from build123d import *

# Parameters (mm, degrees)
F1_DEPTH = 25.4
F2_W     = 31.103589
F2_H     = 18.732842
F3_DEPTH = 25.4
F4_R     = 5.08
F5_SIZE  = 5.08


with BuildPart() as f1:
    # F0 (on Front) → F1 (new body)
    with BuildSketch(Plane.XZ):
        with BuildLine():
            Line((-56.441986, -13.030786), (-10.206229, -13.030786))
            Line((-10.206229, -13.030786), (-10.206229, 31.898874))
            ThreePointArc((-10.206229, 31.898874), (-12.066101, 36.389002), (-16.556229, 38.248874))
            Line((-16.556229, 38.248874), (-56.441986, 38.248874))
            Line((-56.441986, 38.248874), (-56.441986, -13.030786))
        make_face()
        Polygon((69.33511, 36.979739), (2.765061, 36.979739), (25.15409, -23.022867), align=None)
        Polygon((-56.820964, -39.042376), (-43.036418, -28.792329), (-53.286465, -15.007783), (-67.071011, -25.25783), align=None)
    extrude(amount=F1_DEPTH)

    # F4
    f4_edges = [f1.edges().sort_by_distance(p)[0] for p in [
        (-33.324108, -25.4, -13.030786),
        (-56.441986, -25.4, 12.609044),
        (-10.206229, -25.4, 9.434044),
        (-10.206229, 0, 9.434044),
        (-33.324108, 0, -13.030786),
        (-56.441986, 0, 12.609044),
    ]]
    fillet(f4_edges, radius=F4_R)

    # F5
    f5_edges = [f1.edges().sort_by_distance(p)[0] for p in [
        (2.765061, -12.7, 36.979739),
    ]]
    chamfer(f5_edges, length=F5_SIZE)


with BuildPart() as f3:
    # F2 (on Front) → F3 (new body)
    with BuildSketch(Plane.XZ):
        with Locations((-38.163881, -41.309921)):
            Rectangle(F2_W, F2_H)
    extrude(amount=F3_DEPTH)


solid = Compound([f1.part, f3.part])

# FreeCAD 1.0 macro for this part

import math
import FreeCAD as App
import Part
import Sketcher
from FreeCAD import Vector
Q = App.Units.Quantity


def edges_at(feature, points):
    """Names of the edges that pass closest to the given points."""
    edges = feature.Shape.Edges
    near = lambda p: min(range(len(edges)), key=lambda i: edges[i].distToShape(Part.Vertex(*p))[0])
    return sorted({f"Edge{near(p) + 1}" for p in points})


def add_polygon(sketch, points):
    """Adds a closed chain of lines whose ends are joined by coincident constraints."""
    first, n = sketch.GeometryCount, len(points)
    for a, b in zip(points, points[1:] + points[:1]):
        sketch.addGeometry(Part.LineSegment(App.Vector(*a, 0), App.Vector(*b, 0)), False)
    for i in range(n):
        sketch.addConstraint(Sketcher.Constraint("Coincident", first + i, 2, first + (i + 1) % n, 1))

doc = App.newDocument("Part")
body = doc.addObject("PartDesign::Body", "Body")
body.AllowCompound = True

# Sketch on XZ plane
sketch1 = body.newObject("Sketcher::SketchObject", "Sketch")
sketch1.AttachmentSupport = (doc.getObject("XZ_Plane"), [""])
sketch1.MapMode = "FlatFace"
sketch1.addGeometry(Part.LineSegment(Vector(-56, -13, 0), Vector(-10, -13, 0)), False)  # 0
sketch1.addGeometry(Part.LineSegment(Vector(-10, -13, 0), Vector(-10, 32, 0)), False)  # 1
sketch1.addGeometry(Part.ArcOfCircle(Part.Circle(Vector(-17, 32, 0), Vector(0, 0, 1), 6), math.radians(0), math.radians(90)), False)  # 2
sketch1.addGeometry(Part.LineSegment(Vector(-17, 38, 0), Vector(-56, 38, 0)), False)  # 3
sketch1.addGeometry(Part.LineSegment(Vector(-56, 38, 0), Vector(-56, -13, 0)), False)  # 4
add_polygon(sketch1, [(69, 37), (3, 37), (25, -23)])  # lines 5-7
add_polygon(sketch1, [(-57, -39), (-43, -29), (-53, -15), (-67, -25)])  # lines 8-11
sketch1.addConstraint(Sketcher.Constraint("Coincident", 0, 2, 1, 1))
sketch1.addConstraint(Sketcher.Constraint("Tangent", 1, 2, 2, 1))
sketch1.addConstraint(Sketcher.Constraint("Tangent", 2, 2, 3, 1))
sketch1.addConstraint(Sketcher.Constraint("Coincident", 3, 2, 4, 1))
sketch1.addConstraint(Sketcher.Constraint("Coincident", 4, 2, 0, 1))
sketch1.addConstraint(Sketcher.Constraint("Horizontal", 0))
sketch1.addConstraint(Sketcher.Constraint("Vertical", 1))
sketch1.addConstraint(Sketcher.Constraint("Horizontal", 3))
sketch1.addConstraint(Sketcher.Constraint("Vertical", 4))
sketch1.addConstraint(Sketcher.Constraint("Horizontal", 5))
sketch1.addConstraint(Sketcher.Constraint("Perpendicular", 8, 9))
sketch1.addConstraint(Sketcher.Constraint("Perpendicular", 9, 10))
sketch1.addConstraint(Sketcher.Constraint("Perpendicular", 10, 11))
sketch1.addConstraint(Sketcher.Constraint("Equal", 8, 9))
sketch1.addConstraint(Sketcher.Constraint("Radius", 2, Q("0.25 in")))
sketch1.addConstraint(Sketcher.Constraint("DistanceX", 5, 2, 5, 1, 66.570049))
sketch1.addConstraint(Sketcher.Constraint("DistanceY", 1, 1, 1, 2, 44.92966))
sketch1.addConstraint(Sketcher.Constraint("DistanceY", 8, 2, 10, 2, 3.534499))
sketch1.addConstraint(Sketcher.Constraint("Distance", 6, 64.043589))
sketch1.addConstraint(Sketcher.Constraint("Distance", 7, 74.513591))
sketch1.addConstraint(Sketcher.Constraint("Distance", 8, 17.17781))
sketch1.addConstraint(Sketcher.Constraint("DistanceX", 0, 1, 0, 2, 46.235757))
sketch1.addConstraint(Sketcher.Constraint("DistanceX", 2, 3, -1, 1, 16.556229))
sketch1.addConstraint(Sketcher.Constraint("DistanceX", -1, 1, 5, 2, 2.765061))
sketch1.addConstraint(Sketcher.Constraint("DistanceY", -1, 1, 5, 2, 36.979739))
sketch1.addConstraint(Sketcher.Constraint("DistanceY", 8, 2, -1, 1, 28.792329))
sketch1.addConstraint(Sketcher.Constraint("DistanceX", 10, 2, -1, 1, 67.071011))
sketch1.addConstraint(Sketcher.Constraint("DistanceY", 6, 2, 0, 2, 9.992081))
pad1 = body.newObject("PartDesign::Pad", "Pad")
pad1.Profile = sketch1
pad1.Length = Q("1 in")
doc.recompute()

fillet = body.newObject("PartDesign::Fillet", "Fillet")
fillet.Base = (pad1, edges_at(pad1, [
    (-33.324, -25.4, -13.031),
    (-56.442, -25.4, 12.609),
    (-10.206, -25.4, 9.434),
    (-10.206, 0, 9.434),
    (-33.324, 0, -13.031),
    (-56.442, 0, 12.609),
]))
fillet.Radius = Q("0.2 in")
doc.recompute()

chamfer = body.newObject("PartDesign::Chamfer", "Chamfer")
chamfer.Base = (fillet, edges_at(fillet, [(2.765, -12.7, 36.98)]))
chamfer.Size = Q("0.2 in")
body2 = doc.addObject("PartDesign::Body", "Body001")

# Sketch on XZ plane
sketch2 = body2.newObject("Sketcher::SketchObject", "Sketch001")
sketch2.AttachmentSupport = (doc.getObject("XZ_Plane001"), [""])
sketch2.MapMode = "FlatFace"
add_polygon(sketch2, [(-54, -32), (-54, -51), (-23, -51), (-23, -32)])  # lines 0-3
sketch2.addConstraint(Sketcher.Constraint("Vertical", 0))
sketch2.addConstraint(Sketcher.Constraint("Horizontal", 1))
sketch2.addConstraint(Sketcher.Constraint("Vertical", 2))
sketch2.addConstraint(Sketcher.Constraint("Horizontal", 3))
sketch2.addConstraint(Sketcher.Constraint("DistanceX", 1, 1, 1, 2, 31.103589))
sketch2.addConstraint(Sketcher.Constraint("DistanceY", 0, 2, 0, 1, 18.732842))
sketch2.addConstraint(Sketcher.Constraint("DistanceY", 2, 2, -1, 1, 31.9435))
sketch2.addConstraint(Sketcher.Constraint("DistanceX", 0, 2, -1, 1, 53.715676))
pad2 = body2.newObject("PartDesign::Pad", "Pad001")
pad2.Profile = sketch2
pad2.Length = Q("1 in")

doc.recompute()
